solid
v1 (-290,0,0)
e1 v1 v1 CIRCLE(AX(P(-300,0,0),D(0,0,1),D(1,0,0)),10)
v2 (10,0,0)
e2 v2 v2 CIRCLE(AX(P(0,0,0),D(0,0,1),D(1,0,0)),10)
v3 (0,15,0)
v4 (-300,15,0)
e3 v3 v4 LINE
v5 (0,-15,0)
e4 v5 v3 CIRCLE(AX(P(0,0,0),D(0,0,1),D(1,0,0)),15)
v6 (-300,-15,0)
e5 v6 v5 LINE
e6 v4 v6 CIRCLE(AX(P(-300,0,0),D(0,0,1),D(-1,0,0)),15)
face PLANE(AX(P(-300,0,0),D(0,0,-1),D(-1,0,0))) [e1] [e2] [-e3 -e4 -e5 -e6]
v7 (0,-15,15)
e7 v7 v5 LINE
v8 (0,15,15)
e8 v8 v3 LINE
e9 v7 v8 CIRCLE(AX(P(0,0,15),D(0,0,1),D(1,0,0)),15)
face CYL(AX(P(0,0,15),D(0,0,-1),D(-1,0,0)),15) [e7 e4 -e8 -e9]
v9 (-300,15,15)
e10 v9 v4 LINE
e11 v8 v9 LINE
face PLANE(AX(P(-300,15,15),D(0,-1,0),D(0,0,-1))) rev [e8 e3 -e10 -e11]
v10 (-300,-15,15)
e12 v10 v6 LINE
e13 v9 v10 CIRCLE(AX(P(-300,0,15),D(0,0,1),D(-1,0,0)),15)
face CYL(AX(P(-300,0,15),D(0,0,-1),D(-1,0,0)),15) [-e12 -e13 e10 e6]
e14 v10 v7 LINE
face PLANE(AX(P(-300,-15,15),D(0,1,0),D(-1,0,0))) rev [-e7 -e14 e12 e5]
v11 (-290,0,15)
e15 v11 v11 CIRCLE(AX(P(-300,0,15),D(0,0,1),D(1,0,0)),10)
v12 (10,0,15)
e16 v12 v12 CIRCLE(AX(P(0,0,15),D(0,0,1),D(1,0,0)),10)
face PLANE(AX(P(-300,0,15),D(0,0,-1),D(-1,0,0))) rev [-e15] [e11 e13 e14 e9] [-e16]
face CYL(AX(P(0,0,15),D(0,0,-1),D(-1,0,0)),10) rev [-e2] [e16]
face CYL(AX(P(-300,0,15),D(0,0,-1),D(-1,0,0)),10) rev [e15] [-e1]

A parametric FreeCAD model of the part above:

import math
import FreeCAD as App
import Part
import Sketcher
from FreeCAD import Vector
Q = App.Units.Quantity

doc = App.newDocument("Part")
body = doc.addObject("PartDesign::Body", "Body")

# Sketch on XY plane
sketch1 = body.newObject("Sketcher::SketchObject", "Sketch")
sketch1.AttachmentSupport = (doc.getObject("XY_Plane"), [""])
sketch1.MapMode = "FlatFace"
sketch1.addGeometry([
    Part.LineSegment(Vector(0, 15, 0), Vector(-300, 15, 0)),  # 0
    Part.ArcOfCircle(Part.Circle(Vector(-300, 0, 0), Vector(0, 0, 1), 15), math.radians(90), math.radians(270)),  # 1
    Part.LineSegment(Vector(-300, -15, 0), Vector(0, -15, 0)),  # 2
    Part.ArcOfCircle(Part.Circle(Vector(0, 0, 0), Vector(0, 0, 1), 15), math.radians(-90), math.radians(90)),  # 3
    Part.Circle(Vector(0, 0, 0), Vector(0, 0, 1), 10),  # 4
    Part.Circle(Vector(-300, 0, 0), Vector(0, 0, 1), 10),  # 5
], False)
sketch1.addConstraint([
    Sketcher.Constraint("Tangent", 0, 2, 1, 1),
    Sketcher.Constraint("Tangent", 1, 2, 2, 1),
    Sketcher.Constraint("Tangent", 2, 2, 3, 1),
    Sketcher.Constraint("Tangent", 3, 2, 0, 1),
    Sketcher.Constraint("Horizontal", 0),
    Sketcher.Constraint("Horizontal", 2),
    Sketcher.Constraint("Coincident", 3, 3, -1, 1),
    Sketcher.Constraint("Coincident", 4, 3, -1, 1),
    Sketcher.Constraint("Coincident", 5, 3, 1, 3),
    Sketcher.Constraint("Equal", 4, 5),
    Sketcher.Constraint("Diameter", 4, Q("20 mm")),
    Sketcher.Constraint("Radius", 1, Q("15 mm")),
    Sketcher.Constraint("DistanceX", 0, 2, 0, 1, Q("300 mm")),
])
pad1 = body.newObject("PartDesign::Pad", "Pad")
pad1.Profile = sketch1
pad1.Length = 15

doc.recompute()
